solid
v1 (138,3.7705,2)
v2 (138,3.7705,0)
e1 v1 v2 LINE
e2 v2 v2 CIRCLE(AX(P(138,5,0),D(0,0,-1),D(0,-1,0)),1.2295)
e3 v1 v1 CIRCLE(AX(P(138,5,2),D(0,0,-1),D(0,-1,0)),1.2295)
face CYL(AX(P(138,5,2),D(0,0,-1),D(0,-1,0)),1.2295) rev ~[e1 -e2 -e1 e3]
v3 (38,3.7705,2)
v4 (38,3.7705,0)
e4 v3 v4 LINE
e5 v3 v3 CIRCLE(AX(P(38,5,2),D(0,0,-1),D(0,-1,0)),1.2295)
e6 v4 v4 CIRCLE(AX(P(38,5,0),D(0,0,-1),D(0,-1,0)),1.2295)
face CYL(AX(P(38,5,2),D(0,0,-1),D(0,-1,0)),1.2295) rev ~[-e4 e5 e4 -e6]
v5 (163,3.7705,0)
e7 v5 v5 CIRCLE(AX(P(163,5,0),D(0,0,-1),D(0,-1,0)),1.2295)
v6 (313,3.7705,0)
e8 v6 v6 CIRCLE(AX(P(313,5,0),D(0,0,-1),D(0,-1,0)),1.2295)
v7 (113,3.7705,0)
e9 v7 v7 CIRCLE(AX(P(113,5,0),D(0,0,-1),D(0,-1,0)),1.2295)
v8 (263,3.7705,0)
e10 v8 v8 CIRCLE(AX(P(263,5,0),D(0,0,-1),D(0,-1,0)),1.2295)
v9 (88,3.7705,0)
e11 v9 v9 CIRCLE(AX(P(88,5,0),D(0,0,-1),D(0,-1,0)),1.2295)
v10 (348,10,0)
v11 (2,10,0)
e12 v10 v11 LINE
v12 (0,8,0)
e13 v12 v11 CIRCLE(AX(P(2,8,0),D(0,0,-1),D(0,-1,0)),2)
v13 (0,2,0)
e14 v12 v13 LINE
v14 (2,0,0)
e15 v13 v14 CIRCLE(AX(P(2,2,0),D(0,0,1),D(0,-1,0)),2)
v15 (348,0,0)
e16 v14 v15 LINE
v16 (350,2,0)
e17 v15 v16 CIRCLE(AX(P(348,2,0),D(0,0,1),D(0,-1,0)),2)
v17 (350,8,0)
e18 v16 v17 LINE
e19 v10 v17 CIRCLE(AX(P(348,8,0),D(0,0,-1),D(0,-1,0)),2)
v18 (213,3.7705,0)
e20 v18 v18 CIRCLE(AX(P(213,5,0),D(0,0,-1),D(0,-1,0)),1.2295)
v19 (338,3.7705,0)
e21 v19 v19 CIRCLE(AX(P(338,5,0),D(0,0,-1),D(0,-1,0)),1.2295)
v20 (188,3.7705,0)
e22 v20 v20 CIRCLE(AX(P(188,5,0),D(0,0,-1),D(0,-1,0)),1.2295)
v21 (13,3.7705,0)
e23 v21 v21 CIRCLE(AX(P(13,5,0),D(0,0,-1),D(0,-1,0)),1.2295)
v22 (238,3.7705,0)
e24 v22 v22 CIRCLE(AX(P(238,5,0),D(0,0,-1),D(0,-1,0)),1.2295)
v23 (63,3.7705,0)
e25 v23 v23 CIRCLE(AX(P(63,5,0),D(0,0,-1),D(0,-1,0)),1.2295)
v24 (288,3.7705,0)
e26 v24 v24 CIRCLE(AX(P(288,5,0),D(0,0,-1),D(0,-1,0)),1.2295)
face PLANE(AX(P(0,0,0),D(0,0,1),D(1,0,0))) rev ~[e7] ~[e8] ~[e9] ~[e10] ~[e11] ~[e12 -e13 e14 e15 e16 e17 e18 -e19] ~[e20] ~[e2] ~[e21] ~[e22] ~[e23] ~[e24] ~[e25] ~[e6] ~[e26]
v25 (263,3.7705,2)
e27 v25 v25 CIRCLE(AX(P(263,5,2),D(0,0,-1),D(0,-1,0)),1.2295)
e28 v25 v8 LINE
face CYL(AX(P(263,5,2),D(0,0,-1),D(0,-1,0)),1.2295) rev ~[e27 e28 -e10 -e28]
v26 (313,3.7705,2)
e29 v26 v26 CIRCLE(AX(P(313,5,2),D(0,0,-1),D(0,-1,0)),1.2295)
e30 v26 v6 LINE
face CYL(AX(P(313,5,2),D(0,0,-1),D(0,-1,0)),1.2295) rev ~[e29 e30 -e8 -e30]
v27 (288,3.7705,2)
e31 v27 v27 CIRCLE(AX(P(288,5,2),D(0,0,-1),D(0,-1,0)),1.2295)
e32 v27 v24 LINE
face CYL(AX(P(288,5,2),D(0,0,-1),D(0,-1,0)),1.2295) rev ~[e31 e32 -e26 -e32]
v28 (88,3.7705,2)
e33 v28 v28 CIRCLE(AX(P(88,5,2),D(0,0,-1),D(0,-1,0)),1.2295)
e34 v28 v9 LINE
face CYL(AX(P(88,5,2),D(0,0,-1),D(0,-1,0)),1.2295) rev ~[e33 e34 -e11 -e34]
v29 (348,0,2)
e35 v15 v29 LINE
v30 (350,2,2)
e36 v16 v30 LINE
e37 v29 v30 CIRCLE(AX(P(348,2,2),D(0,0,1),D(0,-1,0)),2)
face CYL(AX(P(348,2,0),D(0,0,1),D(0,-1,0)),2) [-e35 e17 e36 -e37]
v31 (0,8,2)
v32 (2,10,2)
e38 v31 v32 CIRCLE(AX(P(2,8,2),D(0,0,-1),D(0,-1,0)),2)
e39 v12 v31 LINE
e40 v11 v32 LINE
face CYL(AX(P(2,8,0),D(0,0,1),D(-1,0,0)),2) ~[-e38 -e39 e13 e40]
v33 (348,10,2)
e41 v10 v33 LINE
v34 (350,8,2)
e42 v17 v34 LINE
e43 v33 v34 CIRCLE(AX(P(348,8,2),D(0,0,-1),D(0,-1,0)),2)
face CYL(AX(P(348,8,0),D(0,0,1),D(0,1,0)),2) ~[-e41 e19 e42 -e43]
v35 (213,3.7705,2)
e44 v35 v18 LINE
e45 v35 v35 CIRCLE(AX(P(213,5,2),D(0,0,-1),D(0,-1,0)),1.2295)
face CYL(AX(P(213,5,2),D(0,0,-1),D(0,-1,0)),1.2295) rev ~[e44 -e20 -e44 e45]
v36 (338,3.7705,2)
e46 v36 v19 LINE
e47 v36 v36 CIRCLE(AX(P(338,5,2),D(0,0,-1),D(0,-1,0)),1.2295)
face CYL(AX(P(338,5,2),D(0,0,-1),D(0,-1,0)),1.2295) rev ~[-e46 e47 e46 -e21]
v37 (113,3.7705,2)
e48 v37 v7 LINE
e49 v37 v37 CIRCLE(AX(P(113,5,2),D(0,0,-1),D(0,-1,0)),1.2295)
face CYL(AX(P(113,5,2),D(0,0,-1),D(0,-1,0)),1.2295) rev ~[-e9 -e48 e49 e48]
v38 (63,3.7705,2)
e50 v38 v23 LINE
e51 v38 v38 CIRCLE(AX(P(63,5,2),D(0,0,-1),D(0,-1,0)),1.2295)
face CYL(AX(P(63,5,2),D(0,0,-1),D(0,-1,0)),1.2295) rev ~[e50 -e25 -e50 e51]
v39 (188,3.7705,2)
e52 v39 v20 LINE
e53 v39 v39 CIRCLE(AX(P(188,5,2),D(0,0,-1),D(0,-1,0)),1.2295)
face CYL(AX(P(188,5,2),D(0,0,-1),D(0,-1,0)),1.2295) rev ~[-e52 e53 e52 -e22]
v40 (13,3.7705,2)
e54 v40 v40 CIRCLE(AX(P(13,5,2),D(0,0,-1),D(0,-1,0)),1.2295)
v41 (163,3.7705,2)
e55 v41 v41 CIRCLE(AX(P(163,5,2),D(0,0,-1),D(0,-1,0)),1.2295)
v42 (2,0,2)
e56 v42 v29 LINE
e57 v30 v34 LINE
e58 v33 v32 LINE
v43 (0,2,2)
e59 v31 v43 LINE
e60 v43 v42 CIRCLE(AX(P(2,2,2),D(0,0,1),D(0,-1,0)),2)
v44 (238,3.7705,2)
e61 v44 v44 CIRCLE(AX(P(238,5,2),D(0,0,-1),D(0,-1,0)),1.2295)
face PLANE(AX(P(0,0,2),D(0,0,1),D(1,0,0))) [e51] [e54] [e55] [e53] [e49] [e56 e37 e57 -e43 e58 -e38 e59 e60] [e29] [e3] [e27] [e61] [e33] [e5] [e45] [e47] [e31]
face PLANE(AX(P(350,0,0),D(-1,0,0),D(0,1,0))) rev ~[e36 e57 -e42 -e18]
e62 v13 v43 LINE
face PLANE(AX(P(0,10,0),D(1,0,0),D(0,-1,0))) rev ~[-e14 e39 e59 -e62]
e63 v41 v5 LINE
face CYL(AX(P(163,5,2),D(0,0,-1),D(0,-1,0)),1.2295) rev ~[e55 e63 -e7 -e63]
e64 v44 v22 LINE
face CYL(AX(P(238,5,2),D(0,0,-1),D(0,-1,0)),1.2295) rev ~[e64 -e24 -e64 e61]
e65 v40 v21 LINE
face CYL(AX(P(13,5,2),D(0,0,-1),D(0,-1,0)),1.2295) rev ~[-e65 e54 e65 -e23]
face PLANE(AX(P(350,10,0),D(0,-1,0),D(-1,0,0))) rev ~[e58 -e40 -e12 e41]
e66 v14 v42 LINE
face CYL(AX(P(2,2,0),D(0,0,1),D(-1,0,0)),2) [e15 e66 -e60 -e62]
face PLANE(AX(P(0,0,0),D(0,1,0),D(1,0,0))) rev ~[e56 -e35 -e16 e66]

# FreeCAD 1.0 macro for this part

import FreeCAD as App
import Part
import Sketcher
from FreeCAD import Vector


def edges_at(feature, points):
    """Names of the edges that pass closest to the given points."""
    edges = feature.Shape.Edges
    near = lambda p: min(range(len(edges)), key=lambda i: edges[i].distToShape(Part.Vertex(*p))[0])
    return sorted({f"Edge{near(p) + 1}" for p in points})

doc = App.newDocument("Part")
body = doc.addObject("PartDesign::Body", "Body")

# Sketch on XY plane
sketch1 = doc.addObject("Sketcher::SketchObject", "Sketch")
body.addObject(sketch1)
sketch1.AttachmentSupport = (doc.XY_Plane, [""])
sketch1.MapMode = "FlatFace"
sketch1.addGeometry(Part.LineSegment(Vector(0, 10, 0), Vector(0, 0, 0)), False)
sketch1.addGeometry(Part.LineSegment(Vector(0, 0, 0), Vector(350, 0, 0)), False)
sketch1.addGeometry(Part.LineSegment(Vector(350, 0, 0), Vector(350, 10, 0)), False)
sketch1.addGeometry(Part.LineSegment(Vector(350, 10, 0), Vector(0, 10, 0)), False)
sketch1.addConstraint(Sketcher.Constraint("Coincident", 0, 2, 1, 1))
sketch1.addConstraint(Sketcher.Constraint("Coincident", 1, 2, 2, 1))
sketch1.addConstraint(Sketcher.Constraint("Coincident", 2, 2, 3, 1))
sketch1.addConstraint(Sketcher.Constraint("Coincident", 3, 2, 0, 1))
sketch1.addConstraint(Sketcher.Constraint("Vertical", 0))
sketch1.addConstraint(Sketcher.Constraint("Horizontal", 1))
sketch1.addConstraint(Sketcher.Constraint("Vertical", 2))
sketch1.addConstraint(Sketcher.Constraint("Horizontal", 3))
sketch1.addConstraint(Sketcher.Constraint("Coincident", 0, 2, -1, 1))
sketch1.addConstraint(Sketcher.Constraint("DistanceX", 1, 1, 1, 2, 350.0))
sketch1.addConstraint(Sketcher.Constraint("DistanceY", 0, 2, 0, 1, 10.0))
pad1 = doc.addObject("PartDesign::Pad", "Pad")
body.addObject(pad1)
pad1.Profile = sketch1
pad1.Length = 2

# Sketch on XY plane
sketch2 = doc.addObject("Sketcher::SketchObject", "Sketch001")
body.addObject(sketch2)
sketch2.AttachmentSupport = (doc.XY_Plane, [""])
sketch2.MapMode = "FlatFace"
sketch2.AttachmentOffset = App.Placement(Vector(0, 0, 2), App.Rotation())
sketch2.addGeometry(Part.Circle(Vector(13, 5, 0), Vector(0, 0, 1), 1.2), False)
sketch2.addConstraint(Sketcher.Constraint("Diameter", 0, 2.459))
sketch2.addConstraint(Sketcher.Constraint("DistanceX", -1, 1, 0, 3, 13.0))
sketch2.addConstraint(Sketcher.Constraint("DistanceY", -1, 1, 0, 3, 5.0))
doc.recompute()
hole = doc.addObject("PartDesign::Hole", "Hole")
body.addObject(hole)
hole.Profile = sketch2
hole.ThreadType = "None"
hole.Diameter = 2.459
hole.DepthType = "ThroughAll"
doc.recompute()

linearpattern = doc.addObject("PartDesign::LinearPattern", "LinearPattern")
body.addObject(linearpattern)
linearpattern.Originals = [hole]
linearpattern.Direction = (doc.X_Axis, [""])
linearpattern.Mode = "offset"
linearpattern.Offset = 25
linearpattern.Occurrences = 14
body.Tip = linearpattern
doc.recompute()

fillet = doc.addObject("PartDesign::Fillet", "Fillet")
body.addObject(fillet)
fillet.Base = (linearpattern, edges_at(linearpattern, [
    (0, 0, 1),
    (0, 10, 1),
    (350, 0, 1),
    (350, 10, 1),
]))
fillet.Radius = 2

doc.recompute()
